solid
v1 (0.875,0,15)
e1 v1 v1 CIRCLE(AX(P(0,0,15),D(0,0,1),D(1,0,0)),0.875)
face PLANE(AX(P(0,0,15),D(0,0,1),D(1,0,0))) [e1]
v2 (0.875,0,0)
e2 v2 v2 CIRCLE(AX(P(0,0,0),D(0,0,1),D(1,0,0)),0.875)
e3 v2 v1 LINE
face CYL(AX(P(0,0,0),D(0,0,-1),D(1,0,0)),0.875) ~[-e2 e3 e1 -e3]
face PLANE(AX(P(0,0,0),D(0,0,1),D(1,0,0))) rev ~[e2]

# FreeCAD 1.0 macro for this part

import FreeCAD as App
import Part
import Sketcher
from FreeCAD import Vector
Q = App.Units.Quantity

doc = App.newDocument("Part")
params = doc.addObject("Spreadsheet::Sheet", "Params")
for row, (alias, value) in enumerate([
    ("sketch1_diameter", "1.75 mm"),
    ("pad1_length", "15 mm"),
], start=1):
    params.set(f"A{row}", alias)
    params.set(f"B{row}", "=" + value)
    params.setAlias(f"B{row}", alias)

body = doc.addObject("PartDesign::Body", "Body")

# Sketch on XY plane
sketch1 = doc.addObject("Sketcher::SketchObject", "Sketch")
body.addObject(sketch1)
sketch1.AttachmentSupport = (doc.XY_Plane, [""])
sketch1.MapMode = "FlatFace"
sketch1.addGeometry(Part.Circle(Vector(0, 0, 0), Vector(0, 0, 1), 0.875), False)
sketch1.addConstraint([
    Sketcher.Constraint("Coincident", 0, 3, -1, 1),
    Sketcher.Constraint("Diameter", 0, Q("1.75 mm")),
])
sketch1.setExpression("Constraints[1]", "Params.sketch1_diameter")
pad1 = doc.addObject("PartDesign::Pad", "Pad")
body.addObject(pad1)
pad1.Profile = sketch1
pad1.setExpression("Length", "Params.pad1_length")

doc.recompute()
